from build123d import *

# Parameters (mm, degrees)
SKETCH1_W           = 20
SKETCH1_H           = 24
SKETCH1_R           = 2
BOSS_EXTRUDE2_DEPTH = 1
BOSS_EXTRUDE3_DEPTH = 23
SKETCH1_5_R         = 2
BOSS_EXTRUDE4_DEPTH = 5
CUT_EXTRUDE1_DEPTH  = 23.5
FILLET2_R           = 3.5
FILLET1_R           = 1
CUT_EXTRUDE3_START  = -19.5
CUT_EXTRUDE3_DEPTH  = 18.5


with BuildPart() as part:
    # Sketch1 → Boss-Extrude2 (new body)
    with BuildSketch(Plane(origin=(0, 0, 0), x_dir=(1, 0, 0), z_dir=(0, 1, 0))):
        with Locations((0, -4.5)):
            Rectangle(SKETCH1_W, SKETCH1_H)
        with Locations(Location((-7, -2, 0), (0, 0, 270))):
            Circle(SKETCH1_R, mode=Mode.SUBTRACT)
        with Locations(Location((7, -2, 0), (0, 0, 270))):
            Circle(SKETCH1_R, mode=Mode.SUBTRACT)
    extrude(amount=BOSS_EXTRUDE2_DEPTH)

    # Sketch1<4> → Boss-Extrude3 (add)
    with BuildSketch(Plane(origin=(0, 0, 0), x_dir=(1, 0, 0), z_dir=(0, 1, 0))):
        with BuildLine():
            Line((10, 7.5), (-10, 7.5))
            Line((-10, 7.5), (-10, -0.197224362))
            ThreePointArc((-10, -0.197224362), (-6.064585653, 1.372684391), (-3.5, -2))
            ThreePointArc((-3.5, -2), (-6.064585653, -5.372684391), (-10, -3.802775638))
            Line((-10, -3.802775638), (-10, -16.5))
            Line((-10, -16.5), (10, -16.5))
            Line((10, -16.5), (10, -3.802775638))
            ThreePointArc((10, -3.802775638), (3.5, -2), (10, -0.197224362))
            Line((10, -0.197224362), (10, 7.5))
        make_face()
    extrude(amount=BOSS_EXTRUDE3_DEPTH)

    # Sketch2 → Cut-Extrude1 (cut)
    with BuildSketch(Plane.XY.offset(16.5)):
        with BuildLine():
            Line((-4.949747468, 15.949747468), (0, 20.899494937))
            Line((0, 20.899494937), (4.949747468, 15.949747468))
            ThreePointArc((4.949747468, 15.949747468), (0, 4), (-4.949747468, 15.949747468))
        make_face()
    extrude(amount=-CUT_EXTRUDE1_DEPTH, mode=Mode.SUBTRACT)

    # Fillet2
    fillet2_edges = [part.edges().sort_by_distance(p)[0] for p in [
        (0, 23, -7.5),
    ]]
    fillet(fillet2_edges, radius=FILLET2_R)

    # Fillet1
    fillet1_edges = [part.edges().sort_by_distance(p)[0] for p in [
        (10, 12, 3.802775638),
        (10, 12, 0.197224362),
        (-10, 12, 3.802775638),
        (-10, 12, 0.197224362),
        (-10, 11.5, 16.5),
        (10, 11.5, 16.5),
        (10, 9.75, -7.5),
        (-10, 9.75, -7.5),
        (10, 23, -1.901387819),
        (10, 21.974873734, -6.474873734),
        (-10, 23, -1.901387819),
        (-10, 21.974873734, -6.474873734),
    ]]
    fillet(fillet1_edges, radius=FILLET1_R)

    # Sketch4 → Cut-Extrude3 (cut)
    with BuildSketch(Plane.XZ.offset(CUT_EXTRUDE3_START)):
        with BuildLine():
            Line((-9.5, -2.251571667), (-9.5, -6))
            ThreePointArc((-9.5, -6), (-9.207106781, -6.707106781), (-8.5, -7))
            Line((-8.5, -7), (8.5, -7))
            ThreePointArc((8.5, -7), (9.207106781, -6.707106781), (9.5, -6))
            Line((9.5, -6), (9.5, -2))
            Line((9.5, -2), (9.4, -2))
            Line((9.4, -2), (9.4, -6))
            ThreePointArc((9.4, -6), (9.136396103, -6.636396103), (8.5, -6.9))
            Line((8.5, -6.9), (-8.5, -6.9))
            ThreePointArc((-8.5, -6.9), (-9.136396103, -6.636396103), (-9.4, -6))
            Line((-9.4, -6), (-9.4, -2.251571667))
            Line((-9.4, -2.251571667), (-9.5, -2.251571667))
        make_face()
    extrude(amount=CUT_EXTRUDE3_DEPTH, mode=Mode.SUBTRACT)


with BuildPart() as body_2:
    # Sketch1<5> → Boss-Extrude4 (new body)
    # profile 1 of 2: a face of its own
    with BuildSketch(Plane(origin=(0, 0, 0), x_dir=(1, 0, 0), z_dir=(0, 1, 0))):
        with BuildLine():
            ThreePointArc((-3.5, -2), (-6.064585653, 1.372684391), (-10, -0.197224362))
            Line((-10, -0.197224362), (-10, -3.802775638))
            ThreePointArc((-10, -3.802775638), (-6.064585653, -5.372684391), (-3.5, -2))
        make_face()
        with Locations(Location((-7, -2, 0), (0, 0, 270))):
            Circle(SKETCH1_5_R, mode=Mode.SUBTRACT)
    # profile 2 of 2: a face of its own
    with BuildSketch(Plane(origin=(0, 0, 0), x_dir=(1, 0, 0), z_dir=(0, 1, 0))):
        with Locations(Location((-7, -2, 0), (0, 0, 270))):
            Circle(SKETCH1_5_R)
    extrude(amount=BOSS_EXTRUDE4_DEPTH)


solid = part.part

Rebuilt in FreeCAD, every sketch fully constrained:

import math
import FreeCAD as App
import Part
import Sketcher
from FreeCAD import Vector


def edges_at(feature, points):
    """Names of the edges that pass closest to the given points."""
    edges = feature.Shape.Edges
    near = lambda p: min(range(len(edges)), key=lambda i: edges[i].distToShape(Part.Vertex(*p))[0])
    return sorted({f"Edge{near(p) + 1}" for p in points})


def add_polygon(sketch, points):
    """Adds a closed chain of lines whose ends are joined by coincident constraints."""
    first, n = sketch.GeometryCount, len(points)
    for a, b in zip(points, points[1:] + points[:1]):
        sketch.addGeometry(Part.LineSegment(App.Vector(*a, 0), App.Vector(*b, 0)), False)
    for i in range(n):
        sketch.addConstraint(Sketcher.Constraint("Coincident", first + i, 2, first + (i + 1) % n, 1))

doc = App.newDocument("Part")
params = doc.addObject("Spreadsheet::Sheet", "Params")
for row, (alias, value) in enumerate([
    ("sketch1_diameter", "4 mm"),
    ("sketch1_width", "20 mm"),
    ("sketch1_height", "24 mm"),
    ("pad1_length", "1 mm"),
    ("sketch2_radius", "3.5 mm"),
    ("sketch2_width", "20 mm"),
    ("pad2_length", "23 mm"),
    ("sketch3_radius", "7 mm"),
    ("pocket1_length", "23.5 mm"),
    ("fillet_radius", "3.5 mm"),
    ("fillet2_radius", "1 mm"),
    ("sketch4_radius", "1 mm"),
    ("sketch4_radius2", "0.9 mm"),
    ("sketch4_width", "17 mm"),
    ("sketch4_height", "4 mm"),
    ("pocket2_length", "18.5 mm"),
    ("sketch5_radius", "3.5 mm"),
    ("pad3_length", "5 mm"),
], start=1):
    params.set(f"A{row}", alias)
    params.set(f"B{row}", "=" + value)
    params.setAlias(f"B{row}", alias)

body = doc.addObject("PartDesign::Body", "Body")

# Sketch on XZ plane
sketch1 = body.newObject("Sketcher::SketchObject", "Sketch")
sketch1.AttachmentSupport = (doc.getObject("XZ_Plane"), [""])
sketch1.MapMode = "FlatFace"
add_polygon(sketch1, [(-10, -7.5), (-10, 16.5), (10, 16.5), (10, -7.5)])  # lines 0-3
sketch1.addGeometry(Part.Circle(Vector(-7, 2, 0), Vector(0, 0, 1), 2), False)  # 4
sketch1.addGeometry(Part.Circle(Vector(7, 2, 0), Vector(0, 0, 1), 2), False)  # 5
sketch1.addConstraint([
    Sketcher.Constraint("Vertical", 0),
    Sketcher.Constraint("Horizontal", 1),
    Sketcher.Constraint("Vertical", 2),
    Sketcher.Constraint("Horizontal", 3),
    Sketcher.Constraint("Equal", 4, 5),
    Sketcher.Constraint("Symmetric", 4, 3, 5, 3, -2),
    Sketcher.Constraint("Diameter", 4, 4.0),
    Sketcher.Constraint("DistanceX", 1, 1, 1, 2, 20.0),
    Sketcher.Constraint("DistanceY", 0, 1, 0, 2, 24.0),
    Sketcher.Constraint("DistanceX", 4, 3, -1, 1, 7.0),
    Sketcher.Constraint("DistanceY", -1, 1, 4, 3, 2.0),
    Sketcher.Constraint("DistanceX", 0, 2, -1, 1, 10.0),
    Sketcher.Constraint("DistanceY", -1, 1, 0, 2, 16.5),
])
sketch1.setExpression("Constraints[10]", "Params.sketch1_diameter")
sketch1.setExpression("Constraints[11]", "Params.sketch1_width")
sketch1.setExpression("Constraints[12]", "Params.sketch1_height")
pad1 = body.newObject("PartDesign::Pad", "Pad")
pad1.Profile = sketch1
pad1.setExpression("Length", "Params.pad1_length")
pad1.Reversed = True

# Sketch on XZ plane
sketch2 = body.newObject("Sketcher::SketchObject", "Sketch001")
sketch2.AttachmentSupport = (doc.getObject("XZ_Plane"), [""])
sketch2.MapMode = "FlatFace"
sketch2.addGeometry([
    Part.LineSegment(Vector(10, -7.5, 0), Vector(-10, -7.5, 0)),  # 0
    Part.LineSegment(Vector(-10, -7.5, 0), Vector(-10, 0.197224, 0)),  # 1
    Part.ArcOfCircle(Part.Circle(Vector(-7, 2, 0), Vector(0, 0, 1), 3.5), math.radians(-148.997281), math.radians(0)),  # 2
    Part.ArcOfCircle(Part.Circle(Vector(-7, 2, 0), Vector(0, 0, 1), 3.5), math.radians(0), math.radians(148.997281)),  # 3
    Part.LineSegment(Vector(-10, 3.802776, 0), Vector(-10, 16.5, 0)),  # 4
    Part.LineSegment(Vector(-10, 16.5, 0), Vector(10, 16.5, 0)),  # 5
    Part.LineSegment(Vector(10, 16.5, 0), Vector(10, 3.802776, 0)),  # 6
    Part.ArcOfCircle(Part.Circle(Vector(7, 2, 0), Vector(0, 0, 1), 3.5), math.radians(31.002719), math.radians(328.997281)),  # 7
    Part.LineSegment(Vector(10, 0.197224, 0), Vector(10, -7.5, 0)),  # 8
], False)
sketch2.addConstraint([
    Sketcher.Constraint("Coincident", 0, 2, 1, 1),
    Sketcher.Constraint("Coincident", 1, 2, 2, 1),
    Sketcher.Constraint("Tangent", 2, 2, 3, 1),
    Sketcher.Constraint("Coincident", 3, 2, 4, 1),
    Sketcher.Constraint("Coincident", 4, 2, 5, 1),
    Sketcher.Constraint("Coincident", 5, 2, 6, 1),
    Sketcher.Constraint("Coincident", 6, 2, 7, 1),
    Sketcher.Constraint("Coincident", 7, 2, 8, 1),
    Sketcher.Constraint("Coincident", 8, 2, 0, 1),
    Sketcher.Constraint("Horizontal", 0),
    Sketcher.Constraint("Vertical", 1),
    Sketcher.Constraint("Vertical", 4),
    Sketcher.Constraint("Horizontal", 5),
    Sketcher.Constraint("Vertical", 6),
    Sketcher.Constraint("Vertical", 8),
    Sketcher.Constraint("Equal", 2, 3),
    Sketcher.Constraint("Equal", 3, 7),
    Sketcher.Constraint("Symmetric", 2, 3, 7, 3, -2),
    Sketcher.Constraint("Horizontal", 7, 3, 2, 2),
    Sketcher.Constraint("Horizontal", 3, 2, 6, 2),
    Sketcher.Constraint("Horizontal", 1, 2, 7, 2),
    Sketcher.Constraint("Vertical", 1, 2, 3, 2),
    Sketcher.Constraint("Radius", 2, 3.5),
    Sketcher.Constraint("DistanceX", 0, 2, 0, 1, 20.0),
    Sketcher.Constraint("DistanceX", 2, 3, -1, 1, 7.0),
    Sketcher.Constraint("DistanceY", -1, 1, 2, 3, 2.0),
    Sketcher.Constraint("DistanceY", 0, 2, -1, 1, 7.5),
    Sketcher.Constraint("DistanceY", -1, 1, 4, 2, 16.5),
])
sketch2.setExpression("Constraints[22]", "Params.sketch2_radius")
sketch2.setExpression("Constraints[23]", "Params.sketch2_width")
pad2 = body.newObject("PartDesign::Pad", "Pad001")
pad2.Profile = sketch2
pad2.setExpression("Length", "Params.pad2_length")
pad2.Reversed = True

# Sketch on XY plane
sketch3 = body.newObject("Sketcher::SketchObject", "Sketch002")
sketch3.AttachmentSupport = (doc.getObject("XY_Plane"), [""])
sketch3.MapMode = "FlatFace"
sketch3.AttachmentOffset = App.Placement(Vector(0, 0, 16.5), App.Rotation())
sketch3.addGeometry([
    Part.LineSegment(Vector(0, 20.899495, 0), Vector(-4.949747, 15.949747, 0)),
    Part.ArcOfCircle(Part.Circle(Vector(0, 11, 0), Vector(0, 0, 1), 7), math.radians(135), math.radians(405)),
    Part.LineSegment(Vector(4.949747, 15.949747, 0), Vector(0, 20.899495, 0)),
], False)
sketch3.addConstraint([
    Sketcher.Constraint("Tangent", 0, 2, 1, 1),
    Sketcher.Constraint("Tangent", 1, 2, 2, 1),
    Sketcher.Constraint("Coincident", 2, 2, 0, 1),
    Sketcher.Constraint("Symmetric", 0, 2, 1, 2, -2),
    Sketcher.Constraint("Perpendicular", 0, 2),
    Sketcher.Constraint("Radius", 1, 7.0),
    Sketcher.Constraint("DistanceY", -1, 1, 1, 3, 11.0),
])
sketch3.setExpression("Constraints[5]", "Params.sketch3_radius")
pocket1 = body.newObject("PartDesign::Pocket", "Pocket")
pocket1.Profile = sketch3
pocket1.setExpression("Length", "Params.pocket1_length")
doc.recompute()

fillet = body.newObject("PartDesign::Fillet", "Fillet")
fillet.Base = (pocket1, edges_at(pocket1, [(0, 23, -7.5)]))
fillet.setExpression("Radius", "Params.fillet_radius")
doc.recompute()

fillet2 = body.newObject("PartDesign::Fillet", "Fillet001")
fillet2.Base = (fillet, edges_at(fillet, [
    (10, 12, 3.803),
    (10, 12, 0.197),
    (-10, 12, 3.803),
    (-10, 12, 0.197),
    (-10, 11.5, 16.5),
    (10, 11.5, 16.5),
    (10, 9.75, -7.5),
    (-10, 9.75, -7.5),
    (10, 23, -1.901),
    (10, 21.975, -6.475),
    (-10, 23, -1.901),
    (-10, 21.975, -6.475),
]))
fillet2.setExpression("Radius", "Params.fillet2_radius")

# Sketch on XZ plane
sketch4 = body.newObject("Sketcher::SketchObject", "Sketch003")
sketch4.AttachmentSupport = (doc.getObject("XZ_Plane"), [""])
sketch4.MapMode = "FlatFace"
sketch4.AttachmentOffset = App.Placement(Vector(0, 0, -19.5), App.Rotation())
sketch4.addGeometry([
    Part.LineSegment(Vector(-9.5, -2.251572, 0), Vector(-9.5, -6, 0)),  # 0
    Part.ArcOfCircle(Part.Circle(Vector(-8.5, -6, 0), Vector(0, 0, 1), 1), math.radians(-180), math.radians(-90)),  # 1
    Part.LineSegment(Vector(-8.5, -7, 0), Vector(8.5, -7, 0)),  # 2
    Part.ArcOfCircle(Part.Circle(Vector(8.5, -6, 0), Vector(0, 0, 1), 1), math.radians(-90), math.radians(0)),  # 3
    Part.LineSegment(Vector(9.5, -6, 0), Vector(9.5, -2, 0)),  # 4
    Part.LineSegment(Vector(9.5, -2, 0), Vector(9.4, -2, 0)),  # 5
    Part.LineSegment(Vector(9.4, -2, 0), Vector(9.4, -6, 0)),  # 6
    Part.ArcOfCircle(Part.Circle(Vector(8.5, -6, 0), Vector(0, 0, 1), 0.9), math.radians(-90), math.radians(0)),  # 7
    Part.LineSegment(Vector(8.5, -6.9, 0), Vector(-8.5, -6.9, 0)),  # 8
    Part.ArcOfCircle(Part.Circle(Vector(-8.5, -6, 0), Vector(0, 0, 1), 0.9), math.radians(180), math.radians(270)),  # 9
    Part.LineSegment(Vector(-9.4, -6, 0), Vector(-9.4, -2.251572, 0)),  # 10
    Part.LineSegment(Vector(-9.4, -2.251572, 0), Vector(-9.5, -2.251572, 0)),  # 11
], False)
sketch4.addConstraint([
    Sketcher.Constraint("Tangent", 0, 2, 1, 1),
    Sketcher.Constraint("Tangent", 1, 2, 2, 1),
    Sketcher.Constraint("Tangent", 2, 2, 3, 1),
    Sketcher.Constraint("Tangent", 3, 2, 4, 1),
    Sketcher.Constraint("Coincident", 4, 2, 5, 1),
    Sketcher.Constraint("Coincident", 5, 2, 6, 1),
    Sketcher.Constraint("Tangent", 6, 2, 7, 2),
    Sketcher.Constraint("Tangent", 7, 1, 8, 1),
    Sketcher.Constraint("Tangent", 8, 2, 9, 2),
    Sketcher.Constraint("Tangent", 9, 1, 10, 1),
    Sketcher.Constraint("Coincident", 10, 2, 11, 1),
    Sketcher.Constraint("Coincident", 11, 2, 0, 1),
    Sketcher.Constraint("Vertical", 0),
    Sketcher.Constraint("Horizontal", 2),
    Sketcher.Constraint("Vertical", 4),
    Sketcher.Constraint("Horizontal", 5),
    Sketcher.Constraint("Vertical", 6),
    Sketcher.Constraint("Horizontal", 8),
    Sketcher.Constraint("Vertical", 10),
    Sketcher.Constraint("Horizontal", 11),
    Sketcher.Constraint("Coincident", 7, 3, 3, 3),
    Sketcher.Constraint("Coincident", 9, 3, 1, 3),
    Sketcher.Constraint("Equal", 1, 3),
    Sketcher.Constraint("Radius", 1, 1.0),
    Sketcher.Constraint("Radius", 7, 0.9),
    Sketcher.Constraint("DistanceX", 2, 1, 2, 2, 17.0),
    Sketcher.Constraint("DistanceY", 4, 1, 4, 2, 4.0),
    Sketcher.Constraint("DistanceY", 1, 3, -1, 1, 6.0),
    Sketcher.Constraint("DistanceX", 1, 3, -1, 1, 8.5),
    Sketcher.Constraint("DistanceY", 0, 2, 0, 1, 3.748428),
])
sketch4.setExpression("Constraints[23]", "Params.sketch4_radius")
sketch4.setExpression("Constraints[24]", "Params.sketch4_radius2")
sketch4.setExpression("Constraints[25]", "Params.sketch4_width")
sketch4.setExpression("Constraints[26]", "Params.sketch4_height")
pocket2 = body.newObject("PartDesign::Pocket", "Pocket001")
pocket2.Profile = sketch4
pocket2.setExpression("Length", "Params.pocket2_length")
pocket2.Reversed = True
body2 = doc.addObject("PartDesign::Body", "Body001")

# Sketch on XZ plane
sketch5 = body2.newObject("Sketcher::SketchObject", "Sketch004")
sketch5.AttachmentSupport = (doc.getObject("XZ_Plane001"), [""])
sketch5.MapMode = "FlatFace"
sketch5.addGeometry([
    Part.ArcOfCircle(Part.Circle(Vector(-7, 2, 0), Vector(0, 0, 1), 3.5), math.radians(-148.997281), math.radians(0)),
    Part.LineSegment(Vector(-10, 0.197224, 0), Vector(-10, 3.802776, 0)),
    Part.ArcOfCircle(Part.Circle(Vector(-7, 2, 0), Vector(0, 0, 1), 3.5), math.radians(0), math.radians(148.997281)),
], False)
sketch5.addConstraint([
    Sketcher.Constraint("Coincident", 0, 1, 1, 1),
    Sketcher.Constraint("Coincident", 1, 2, 2, 2),
    Sketcher.Constraint("Tangent", 2, 1, 0, 2),
    Sketcher.Constraint("Vertical", 1),
    Sketcher.Constraint("Equal", 0, 2),
    Sketcher.Constraint("Horizontal", 0, 3, 2, 1),
    Sketcher.Constraint("Radius", 0, 3.5),
    Sketcher.Constraint("DistanceX", 0, 3, -1, 1, 7.0),
    Sketcher.Constraint("DistanceY", -1, 1, 0, 3, 2.0),
    Sketcher.Constraint("DistanceX", 0, 1, -1, 1, 10.0),
])
sketch5.setExpression("Constraints[6]", "Params.sketch5_radius")
pad3 = body2.newObject("PartDesign::Pad", "Pad002")
pad3.Profile = sketch5
pad3.setExpression("Length", "Params.pad3_length")
pad3.Reversed = True
body2.Visibility = False

doc.recompute()
